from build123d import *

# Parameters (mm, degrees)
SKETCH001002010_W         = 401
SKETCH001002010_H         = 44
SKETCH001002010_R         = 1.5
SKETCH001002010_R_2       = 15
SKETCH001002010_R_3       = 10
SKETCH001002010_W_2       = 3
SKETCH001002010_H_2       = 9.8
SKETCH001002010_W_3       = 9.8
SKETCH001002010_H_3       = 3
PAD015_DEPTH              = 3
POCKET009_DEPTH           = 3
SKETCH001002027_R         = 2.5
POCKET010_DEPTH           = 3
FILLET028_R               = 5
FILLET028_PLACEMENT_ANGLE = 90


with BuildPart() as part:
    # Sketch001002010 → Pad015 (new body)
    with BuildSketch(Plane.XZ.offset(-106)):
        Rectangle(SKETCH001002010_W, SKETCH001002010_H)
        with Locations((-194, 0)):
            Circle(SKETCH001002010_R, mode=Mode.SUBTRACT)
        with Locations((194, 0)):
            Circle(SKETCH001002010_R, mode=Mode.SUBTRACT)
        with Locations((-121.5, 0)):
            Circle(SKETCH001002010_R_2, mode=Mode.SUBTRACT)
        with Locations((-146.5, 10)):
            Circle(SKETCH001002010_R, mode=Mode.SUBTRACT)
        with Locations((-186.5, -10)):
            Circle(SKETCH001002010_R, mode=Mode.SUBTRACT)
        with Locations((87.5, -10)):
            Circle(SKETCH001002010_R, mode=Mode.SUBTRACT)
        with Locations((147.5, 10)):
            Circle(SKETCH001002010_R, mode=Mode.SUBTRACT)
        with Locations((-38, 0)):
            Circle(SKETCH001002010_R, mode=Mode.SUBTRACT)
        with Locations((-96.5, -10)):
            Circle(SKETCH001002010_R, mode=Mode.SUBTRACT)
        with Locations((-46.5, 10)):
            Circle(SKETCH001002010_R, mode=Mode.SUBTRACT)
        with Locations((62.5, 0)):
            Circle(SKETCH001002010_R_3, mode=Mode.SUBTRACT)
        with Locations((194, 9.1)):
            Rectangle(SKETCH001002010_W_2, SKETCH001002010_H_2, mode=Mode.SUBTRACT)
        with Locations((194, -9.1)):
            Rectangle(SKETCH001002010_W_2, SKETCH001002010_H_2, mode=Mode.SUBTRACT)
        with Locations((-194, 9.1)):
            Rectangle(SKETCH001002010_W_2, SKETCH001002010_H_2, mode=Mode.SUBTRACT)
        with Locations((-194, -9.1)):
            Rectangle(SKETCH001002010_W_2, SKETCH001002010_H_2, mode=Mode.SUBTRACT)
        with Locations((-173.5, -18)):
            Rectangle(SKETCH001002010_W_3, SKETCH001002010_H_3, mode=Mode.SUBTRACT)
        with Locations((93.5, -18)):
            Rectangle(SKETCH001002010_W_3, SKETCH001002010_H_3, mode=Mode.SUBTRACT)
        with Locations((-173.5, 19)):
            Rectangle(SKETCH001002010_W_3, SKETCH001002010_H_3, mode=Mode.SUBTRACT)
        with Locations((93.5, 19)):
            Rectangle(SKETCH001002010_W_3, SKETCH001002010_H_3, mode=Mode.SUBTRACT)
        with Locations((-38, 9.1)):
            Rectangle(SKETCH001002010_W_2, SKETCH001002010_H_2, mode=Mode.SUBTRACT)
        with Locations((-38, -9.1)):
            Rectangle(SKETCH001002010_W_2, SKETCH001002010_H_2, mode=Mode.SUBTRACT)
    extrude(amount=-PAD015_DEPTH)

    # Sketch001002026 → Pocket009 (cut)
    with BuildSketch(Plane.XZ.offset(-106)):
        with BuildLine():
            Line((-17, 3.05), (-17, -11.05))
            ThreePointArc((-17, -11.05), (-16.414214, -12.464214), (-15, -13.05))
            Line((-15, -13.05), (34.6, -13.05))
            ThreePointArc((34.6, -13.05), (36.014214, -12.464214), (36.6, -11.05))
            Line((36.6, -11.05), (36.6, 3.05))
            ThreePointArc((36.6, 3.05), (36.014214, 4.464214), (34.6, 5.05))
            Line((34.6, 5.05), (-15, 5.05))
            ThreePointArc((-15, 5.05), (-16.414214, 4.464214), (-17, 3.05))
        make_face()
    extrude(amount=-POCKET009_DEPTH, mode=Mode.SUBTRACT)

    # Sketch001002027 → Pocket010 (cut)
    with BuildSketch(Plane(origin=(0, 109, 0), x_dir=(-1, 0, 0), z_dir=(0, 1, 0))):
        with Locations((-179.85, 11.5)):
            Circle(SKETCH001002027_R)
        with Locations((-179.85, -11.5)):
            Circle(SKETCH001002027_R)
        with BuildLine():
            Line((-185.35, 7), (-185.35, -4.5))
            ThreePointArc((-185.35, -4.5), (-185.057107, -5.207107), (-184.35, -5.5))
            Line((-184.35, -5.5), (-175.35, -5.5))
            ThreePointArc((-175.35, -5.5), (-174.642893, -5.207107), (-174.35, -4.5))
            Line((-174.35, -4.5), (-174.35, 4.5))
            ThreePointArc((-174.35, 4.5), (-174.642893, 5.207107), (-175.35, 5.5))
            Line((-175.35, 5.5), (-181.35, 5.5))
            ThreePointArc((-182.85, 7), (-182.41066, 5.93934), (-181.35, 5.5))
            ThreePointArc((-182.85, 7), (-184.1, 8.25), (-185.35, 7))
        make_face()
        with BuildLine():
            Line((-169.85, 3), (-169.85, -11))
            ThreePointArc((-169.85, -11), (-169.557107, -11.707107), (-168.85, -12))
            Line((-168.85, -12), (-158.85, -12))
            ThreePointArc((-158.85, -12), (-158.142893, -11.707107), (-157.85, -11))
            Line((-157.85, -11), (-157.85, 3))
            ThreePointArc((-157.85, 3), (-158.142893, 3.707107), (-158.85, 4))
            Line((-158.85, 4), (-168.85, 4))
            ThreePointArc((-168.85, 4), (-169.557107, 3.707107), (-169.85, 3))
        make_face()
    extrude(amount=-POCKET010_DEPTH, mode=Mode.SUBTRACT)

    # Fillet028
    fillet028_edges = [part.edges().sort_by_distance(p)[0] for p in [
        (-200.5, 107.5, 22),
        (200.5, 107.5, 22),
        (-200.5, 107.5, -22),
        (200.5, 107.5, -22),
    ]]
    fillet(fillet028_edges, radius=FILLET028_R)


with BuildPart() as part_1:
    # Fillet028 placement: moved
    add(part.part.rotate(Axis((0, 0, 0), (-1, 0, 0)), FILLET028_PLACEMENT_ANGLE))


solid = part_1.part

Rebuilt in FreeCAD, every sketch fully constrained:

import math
import FreeCAD as App
import Part
import Sketcher


def edges_at(feature, points):
    """Names of the edges that pass closest to the given points."""
    edges = feature.Shape.Edges
    near = lambda p: min(range(len(edges)), key=lambda i: edges[i].distToShape(Part.Vertex(*p))[0])
    return sorted({f"Edge{near(p) + 1}" for p in points})


def add_polygon(sketch, points):
    """Adds a closed chain of lines whose ends are joined by coincident constraints."""
    first, n = sketch.GeometryCount, len(points)
    for a, b in zip(points, points[1:] + points[:1]):
        sketch.addGeometry(Part.LineSegment(App.Vector(*a, 0), App.Vector(*b, 0)), False)
    for i in range(n):
        sketch.addConstraint(Sketcher.Constraint("Coincident", first + i, 2, first + (i + 1) % n, 1))

doc = App.newDocument("Part")
params = doc.addObject("Spreadsheet::Sheet", "Params")
for row, (alias, value) in enumerate([
    ("sketch1_diameter", "3 mm"),
    ("sketch1_diameter2", "30 mm"),
    ("sketch1_diameter3", "20 mm"),
    ("sketch1_width", "401 mm"),
    ("sketch1_width2", "3 mm"),
    ("pad1_length", "3 mm"),
    ("sketch2_radius", "1.999999 mm"),
    ("sketch2_width", "49.6 mm"),
    ("sketch2_height", "14.1 mm"),
    ("pocket1_length", "3 mm"),
    ("sketch3_diameter", "5 mm"),
    ("sketch3_radius", "0.999999 mm"),
    ("sketch3_radius2", "1.500001 mm"),
    ("sketch3_width", "9 mm"),
    ("sketch3_width2", "6 mm"),
    ("pocket2_length", "3 mm"),
    ("fillet_radius", "5 mm"),
], start=1):
    params.set(f"A{row}", alias)
    params.set(f"B{row}", "=" + value)
    params.setAlias(f"B{row}", alias)

body = doc.addObject("PartDesign::Body", "Body")

sketch1 = body.newObject("Sketcher::SketchObject", "Sketch")
sketch1.AttachmentSupport = (doc.getObject("XZ_Plane"), [""])
sketch1.MapMode = "FlatFace"
sketch1.AttachmentOffset = App.Placement(App.Vector(0, 0, -106), App.Rotation())
add_polygon(sketch1, [(-200.5, 22), (-200.5, -22), (200.5, -22), (200.5, 22)])
add_polygon(sketch1, [(-168.6, -19.5), (-178.4, -19.5), (-178.4, -16.5), (-168.6, -16.5)])
sketch1.addGeometry(Part.Circle(App.Vector(-186.5, -10, 0), App.Vector(0, 0, 1), 1.5), False)
sketch1.addGeometry(Part.Circle(App.Vector(-96.5, -10, 0), App.Vector(0, 0, 1), 1.5), False)
add_polygon(sketch1, [(-192.5, -14), (-195.5, -14), (-195.5, -4.2), (-192.5, -4.2)])
sketch1.addGeometry(Part.Circle(App.Vector(-194, 0, 0), App.Vector(0, 0, 1), 1.5), False)
sketch1.addGeometry(Part.Circle(App.Vector(-121.5, 0, 0), App.Vector(0, 0, 1), 15), False)
add_polygon(sketch1, [(-36.5, -14), (-39.5, -14), (-39.5, -4.2), (-36.5, -4.2)])
sketch1.addGeometry(Part.Circle(App.Vector(-38, 0, 0), App.Vector(0, 0, 1), 1.5), False)
add_polygon(sketch1, [(98.4, -19.5), (88.6, -19.5), (88.6, -16.5), (98.4, -16.5)])
sketch1.addGeometry(Part.Circle(App.Vector(87.5, -10, 0), App.Vector(0, 0, 1), 1.5), False)
sketch1.addGeometry(Part.Circle(App.Vector(62.5, 0, 0), App.Vector(0, 0, 1), 10), False)
add_polygon(sketch1, [(195.5, -14), (192.5, -14), (192.5, -4.2), (195.5, -4.2)])
sketch1.addGeometry(Part.Circle(App.Vector(194, 0, 0), App.Vector(0, 0, 1), 1.5), False)
add_polygon(sketch1, [(-192.5, 4.2), (-195.5, 4.2), (-195.5, 14), (-192.5, 14)])
sketch1.addGeometry(Part.Circle(App.Vector(-146.5, 10, 0), App.Vector(0, 0, 1), 1.5), False)
add_polygon(sketch1, [(-36.5, 4.2), (-39.5, 4.2), (-39.5, 14), (-36.5, 14)])
sketch1.addGeometry(Part.Circle(App.Vector(-46.5, 10, 0), App.Vector(0, 0, 1), 1.5), False)
add_polygon(sketch1, [(-168.6, 17.5), (-178.4, 17.5), (-178.4, 20.5), (-168.6, 20.5)])
sketch1.addGeometry(Part.Circle(App.Vector(147.5, 10, 0), App.Vector(0, 0, 1), 1.5), False)
add_polygon(sketch1, [(195.5, 4.2), (192.5, 4.2), (192.5, 14), (195.5, 14)])
add_polygon(sketch1, [(98.4, 17.5), (88.6, 17.5), (88.6, 20.5), (98.4, 20.5)])
sketch1.addConstraint([
    Sketcher.Constraint("Vertical", 0),
    Sketcher.Constraint("Horizontal", 1),
    Sketcher.Constraint("Vertical", 2),
    Sketcher.Constraint("Horizontal", 3),
    Sketcher.Constraint("Horizontal", 4),
    Sketcher.Constraint("Vertical", 5),
    Sketcher.Constraint("Horizontal", 6),
    Sketcher.Constraint("Vertical", 7),
    Sketcher.Constraint("Horizontal", 10),
    Sketcher.Constraint("Vertical", 11),
    Sketcher.Constraint("Horizontal", 12),
    Sketcher.Constraint("Vertical", 13),
    Sketcher.Constraint("Horizontal", 16),
    Sketcher.Constraint("Vertical", 17),
    Sketcher.Constraint("Horizontal", 18),
    Sketcher.Constraint("Vertical", 19),
    Sketcher.Constraint("Horizontal", 21),
    Sketcher.Constraint("Vertical", 22),
    Sketcher.Constraint("Horizontal", 23),
    Sketcher.Constraint("Vertical", 24),
    Sketcher.Constraint("Horizontal", 27),
    Sketcher.Constraint("Vertical", 28),
    Sketcher.Constraint("Horizontal", 29),
    Sketcher.Constraint("Vertical", 30),
    Sketcher.Constraint("Horizontal", 32),
    Sketcher.Constraint("Vertical", 33),
    Sketcher.Constraint("Horizontal", 34),
    Sketcher.Constraint("Vertical", 35),
    Sketcher.Constraint("Horizontal", 37),
    Sketcher.Constraint("Vertical", 38),
    Sketcher.Constraint("Horizontal", 39),
    Sketcher.Constraint("Vertical", 40),
    Sketcher.Constraint("Horizontal", 42),
    Sketcher.Constraint("Vertical", 43),
    Sketcher.Constraint("Horizontal", 44),
    Sketcher.Constraint("Vertical", 45),
    Sketcher.Constraint("Horizontal", 47),
    Sketcher.Constraint("Vertical", 48),
    Sketcher.Constraint("Horizontal", 49),
    Sketcher.Constraint("Vertical", 50),
    Sketcher.Constraint("Horizontal", 51),
    Sketcher.Constraint("Vertical", 52),
    Sketcher.Constraint("Horizontal", 53),
    Sketcher.Constraint("Vertical", 54),
    Sketcher.Constraint("Equal", 8, 9),
    Sketcher.Constraint("Equal", 9, 14),
    Sketcher.Constraint("Equal", 14, 20),
    Sketcher.Constraint("Equal", 20, 25),
    Sketcher.Constraint("Equal", 25, 31),
    Sketcher.Constraint("Equal", 31, 36),
    Sketcher.Constraint("Equal", 36, 41),
    Sketcher.Constraint("Equal", 41, 46),
    Sketcher.Constraint("Symmetric", 14, 3, 31, 3, -1, 1),
    Sketcher.Constraint("Symmetric", 0, 2, 2, 2, -1, 1),
    Sketcher.Constraint("Symmetric", 29, 2, 32, 2, -1, 1),
    Sketcher.Constraint("Symmetric", 27, 2, 34, 2, -1, 1),
    Sketcher.Constraint("Symmetric", 12, 2, 47, 2, -1, 1),
    Sketcher.Constraint("Symmetric", 10, 2, 49, 2, -1, 1),
    Sketcher.Constraint("Symmetric", 13, 2, 27, 2, -2),
    Sketcher.Constraint("Symmetric", 11, 2, 29, 2, -2),
    Sketcher.Constraint("Symmetric", 17, 2, 37, 2, -1),
    Sketcher.Constraint("Symmetric", 19, 2, 39, 2, -1),
    Sketcher.Constraint("PointOnObject", 14, 3, -1),
    Sketcher.Constraint("PointOnObject", 15, 3, -1),
    Sketcher.Constraint("PointOnObject", 20, 3, -1),
    Sketcher.Constraint("PointOnObject", 26, 3, -1),
    Sketcher.Constraint("Horizontal", 8, 3, 9, 3),
    Sketcher.Constraint("Horizontal", 9, 3, 25, 3),
    Sketcher.Constraint("Horizontal", 36, 3, 41, 3),
    Sketcher.Constraint("Horizontal", 41, 3, 46, 3),
    Sketcher.Constraint("Horizontal", 13, 2, 16, 2),
    Sketcher.Constraint("Horizontal", 12, 2, 17, 2),
    Sketcher.Constraint("Horizontal", 7, 2, 21, 2),
    Sketcher.Constraint("Horizontal", 6, 2, 22, 2),
    Sketcher.Constraint("Horizontal", 45, 2, 51, 2),
    Sketcher.Constraint("Horizontal", 44, 2, 52, 2),
    Sketcher.Constraint("Vertical", 5, 2, 42, 2),
    Sketcher.Constraint("Vertical", 7, 2, 44, 2),
    Sketcher.Constraint("Vertical", 22, 2, 51, 2),
    Sketcher.Constraint("Vertical", 24, 2, 53, 2),
    Sketcher.Constraint("Equal", 12, 16),
    Sketcher.Constraint("Equal", 6, 21),
    Sketcher.Constraint("Equal", 49, 5),
    Sketcher.Constraint("Equal", 53, 11),
    Sketcher.Constraint("Equal", 24, 43),
    Sketcher.Constraint("Diameter", 8, 3.0),
    Sketcher.Constraint("Diameter", 15, 30.0),
    Sketcher.Constraint("Diameter", 26, 20.0),
    Sketcher.Constraint("DistanceX", 1, 1, 1, 2, 401.0),
    Sketcher.Constraint("DistanceX", 10, 2, 10, 1, 3.0),
    Sketcher.Constraint("DistanceY", 0, 2, 0, 1, 44.0),
    Sketcher.Constraint("DistanceX", 4, 2, 4, 1, 9.8),
    Sketcher.Constraint("DistanceY", 8, 3, -1, 1, 10.0),
    Sketcher.Constraint("DistanceX", 14, 3, -1, 1, 194.0),
    Sketcher.Constraint("DistanceX", 20, 3, -1, 1, 38.0),
    Sketcher.Constraint("DistanceY", -1, 1, 36, 3, 10.0),
    Sketcher.Constraint("DistanceY", 10, 2, -1, 1, 14.0),
    Sketcher.Constraint("DistanceX", 8, 3, 9, 3, 90.0),
    Sketcher.Constraint("DistanceX", 15, 3, 9, 3, 25.0),
    Sketcher.Constraint("DistanceX", 9, 3, 25, 3, 184.0),
    Sketcher.Constraint("DistanceX", 26, 3, 25, 3, 25.0),
    Sketcher.Constraint("DistanceX", 36, 3, 15, 3, 25.0),
    Sketcher.Constraint("DistanceX", 9, 3, 41, 3, 50.0),
    Sketcher.Constraint("DistanceX", 25, 3, 46, 3, 60.0),
    Sketcher.Constraint("DistanceX", 0, 2, 8, 3, 14.0),
    Sketcher.Constraint("DistanceX", 0, 2, 10, 2, 5.0),
    Sketcher.Constraint("DistanceX", 41, 3, 16, 2, 7.0),
    Sketcher.Constraint("DistanceY", 22, 2, 51, 2, 34.0),
    Sketcher.Constraint("DistanceX", 4, 2, -1, 1, 178.4),
    Sketcher.Constraint("DistanceY", 4, 2, -1, 1, 19.5),
    Sketcher.Constraint("DistanceX", -1, 1, 21, 2, 88.6),
])
sketch1.setExpression("Constraints[129]", "Params.sketch1_diameter")
sketch1.setExpression("Constraints[130]", "Params.sketch1_diameter2")
sketch1.setExpression("Constraints[131]", "Params.sketch1_diameter3")
sketch1.setExpression("Constraints[132]", "Params.sketch1_width")
sketch1.setExpression("Constraints[133]", "Params.sketch1_width2")
pad1 = body.newObject("PartDesign::Pad", "Pad")
pad1.Profile = sketch1
pad1.setExpression("Length", "Params.pad1_length")
pad1.Reversed = True

sketch2 = body.newObject("Sketcher::SketchObject", "Sketch001")
sketch2.AttachmentSupport = (doc.getObject("XZ_Plane"), [""])
sketch2.MapMode = "FlatFace"
sketch2.AttachmentOffset = App.Placement(App.Vector(0, 0, -106), App.Rotation())
sketch2.addGeometry([
    Part.LineSegment(App.Vector(-17, 3.05, 0), App.Vector(-17, -11.05, 0)),
    Part.ArcOfCircle(Part.Circle(App.Vector(-15.000001, -11.050001, 0), App.Vector(0, 0, 1), 1.999999), math.radians(179.999957), math.radians(270.000043)),
    Part.LineSegment(App.Vector(-15, -13.05, 0), App.Vector(34.6, -13.05, 0)),
    Part.ArcOfCircle(Part.Circle(App.Vector(34.600001, -11.050001, 0), App.Vector(0, 0, 1), 1.999999), math.radians(-90.000043), math.radians(0.000043)),
    Part.LineSegment(App.Vector(36.6, -11.05, 0), App.Vector(36.6, 3.05, 0)),
    Part.ArcOfCircle(Part.Circle(App.Vector(34.600001, 3.050001, 0), App.Vector(0, 0, 1), 1.999999), math.radians(-0.000043), math.radians(90.000043)),
    Part.LineSegment(App.Vector(34.6, 5.05, 0), App.Vector(-15, 5.05, 0)),
    Part.ArcOfCircle(Part.Circle(App.Vector(-15.000001, 3.050001, 0), App.Vector(0, 0, 1), 1.999999), math.radians(89.999957), math.radians(180.000043)),
], False)
sketch2.addConstraint([
    Sketcher.Constraint("Tangent", 0, 2, 1, 1),
    Sketcher.Constraint("Tangent", 1, 2, 2, 1),
    Sketcher.Constraint("Tangent", 2, 2, 3, 1),
    Sketcher.Constraint("Tangent", 3, 2, 4, 1),
    Sketcher.Constraint("Tangent", 4, 2, 5, 1),
    Sketcher.Constraint("Tangent", 5, 2, 6, 1),
    Sketcher.Constraint("Tangent", 6, 2, 7, 1),
    Sketcher.Constraint("Tangent", 7, 2, 0, 1),
    Sketcher.Constraint("Vertical", 0),
    Sketcher.Constraint("Horizontal", 2),
    Sketcher.Constraint("Vertical", 4),
    Sketcher.Constraint("Horizontal", 6),
    Sketcher.Constraint("Equal", 1, 3),
    Sketcher.Constraint("Equal", 3, 5),
    Sketcher.Constraint("Equal", 5, 7),
    Sketcher.Constraint("Radius", 1, 1.999999),
    Sketcher.Constraint("DistanceX", 2, 1, 2, 2, 49.6),
    Sketcher.Constraint("DistanceY", 0, 2, 0, 1, 14.1),
    Sketcher.Constraint("DistanceX", 1, 3, -1, 1, 15.000001),
    Sketcher.Constraint("DistanceY", 1, 3, -1, 1, 11.050001),
])
sketch2.setExpression("Constraints[15]", "Params.sketch2_radius")
sketch2.setExpression("Constraints[16]", "Params.sketch2_width")
sketch2.setExpression("Constraints[17]", "Params.sketch2_height")
pocket1 = body.newObject("PartDesign::Pocket", "Pocket")
pocket1.Profile = sketch2
pocket1.setExpression("Length", "Params.pocket1_length")

sketch3 = body.newObject("Sketcher::SketchObject", "Sketch002")
sketch3.AttachmentSupport = (doc.getObject("XZ_Plane"), [""])
sketch3.MapMode = "FlatFace"
sketch3.AttachmentOffset = App.Placement(App.Vector(0, 0, -109), App.Rotation())
sketch3.addGeometry([
    Part.Circle(App.Vector(179.85, 11.5, 0), App.Vector(0, 0, 1), 2.5),
    Part.Circle(App.Vector(179.85, -11.5, 0), App.Vector(0, 0, 1), 2.5),
    Part.LineSegment(App.Vector(185.35, 7, 0), App.Vector(185.35, -4.5, 0)),
    Part.ArcOfCircle(Part.Circle(App.Vector(184.350001, -4.500001, 0), App.Vector(0, 0, 1), 0.999999), math.radians(-90.000043), math.radians(0.000043)),
    Part.LineSegment(App.Vector(184.35, -5.5, 0), App.Vector(175.35, -5.5, 0)),
    Part.ArcOfCircle(Part.Circle(App.Vector(175.349999, -4.500001, 0), App.Vector(0, 0, 1), 0.999999), math.radians(179.999957), math.radians(270.000043)),
    Part.LineSegment(App.Vector(174.35, -4.5, 0), App.Vector(174.35, 4.5, 0)),
    Part.ArcOfCircle(Part.Circle(App.Vector(175.349999, 4.500001, 0), App.Vector(0, 0, 1), 0.999999), math.radians(89.999957), math.radians(180.000043)),
    Part.LineSegment(App.Vector(175.35, 5.5, 0), App.Vector(181.35, 5.5, 0)),
    Part.ArcOfCircle(Part.Circle(App.Vector(181.349999, 7.000001, 0), App.Vector(0, 0, 1), 1.500001), math.radians(-89.999978), math.radians(-0.000022)),
    Part.ArcOfCircle(Part.Circle(App.Vector(184.1, 7, 0), App.Vector(0, 0, 1), 1.25), math.radians(0), math.radians(180)),
    Part.LineSegment(App.Vector(169.85, 3, 0), App.Vector(169.85, -11, 0)),
    Part.ArcOfCircle(Part.Circle(App.Vector(168.850001, -11.000001, 0), App.Vector(0, 0, 1), 0.999999), math.radians(-90.000043), math.radians(0.000043)),
    Part.LineSegment(App.Vector(168.85, -12, 0), App.Vector(158.85, -12, 0)),
    Part.ArcOfCircle(Part.Circle(App.Vector(158.849999, -11.000001, 0), App.Vector(0, 0, 1), 0.999999), math.radians(179.999957), math.radians(270.000043)),
    Part.LineSegment(App.Vector(157.85, -11, 0), App.Vector(157.85, 3, 0)),
    Part.ArcOfCircle(Part.Circle(App.Vector(158.849999, 3.000001, 0), App.Vector(0, 0, 1), 0.999999), math.radians(89.999957), math.radians(180.000043)),
    Part.LineSegment(App.Vector(158.85, 4, 0), App.Vector(168.85, 4, 0)),
    Part.ArcOfCircle(Part.Circle(App.Vector(168.850001, 3.000001, 0), App.Vector(0, 0, 1), 0.999999), math.radians(-0.000043), math.radians(90.000043)),
], False)
sketch3.addConstraint([
    Sketcher.Constraint("Tangent", 2, 2, 3, 2),
    Sketcher.Constraint("Tangent", 3, 1, 4, 1),
    Sketcher.Constraint("Tangent", 4, 2, 5, 2),
    Sketcher.Constraint("Tangent", 5, 1, 6, 1),
    Sketcher.Constraint("Tangent", 6, 2, 7, 2),
    Sketcher.Constraint("Tangent", 7, 1, 8, 1),
    Sketcher.Constraint("Tangent", 8, 2, 9, 1),
    Sketcher.Constraint("Tangent", 9, 2, 10, 2),
    Sketcher.Constraint("Tangent", 10, 1, 2, 1),
    Sketcher.Constraint("Tangent", 11, 2, 12, 2),
    Sketcher.Constraint("Tangent", 12, 1, 13, 1),
    Sketcher.Constraint("Tangent", 13, 2, 14, 2),
    Sketcher.Constraint("Tangent", 14, 1, 15, 1),
    Sketcher.Constraint("Tangent", 15, 2, 16, 2),
    Sketcher.Constraint("Tangent", 16, 1, 17, 1),
    Sketcher.Constraint("Tangent", 17, 2, 18, 2),
    Sketcher.Constraint("Tangent", 18, 1, 11, 1),
    Sketcher.Constraint("Vertical", 2),
    Sketcher.Constraint("Horizontal", 4),
    Sketcher.Constraint("Vertical", 6),
    Sketcher.Constraint("Horizontal", 8),
    Sketcher.Constraint("Vertical", 11),
    Sketcher.Constraint("Horizontal", 13),
    Sketcher.Constraint("Vertical", 15),
    Sketcher.Constraint("Horizontal", 17),
    Sketcher.Constraint("Equal", 0, 1),
    Sketcher.Constraint("Equal", 3, 5),
    Sketcher.Constraint("Equal", 5, 7),
    Sketcher.Constraint("Equal", 7, 12),
    Sketcher.Constraint("Equal", 12, 14),
    Sketcher.Constraint("Equal", 14, 16),
    Sketcher.Constraint("Equal", 16, 18),
    Sketcher.Constraint("Symmetric", 0, 3, 1, 3, -1),
    Sketcher.Constraint("Horizontal", 9, 3, 10, 3),
    Sketcher.Constraint("Equal", 4, 6),
    Sketcher.Constraint("Diameter", 0, 5.0),
    Sketcher.Constraint("Radius", 3, 0.999999),
    Sketcher.Constraint("Radius", 9, 1.500001),
    Sketcher.Constraint("DistanceX", 4, 2, 4, 1, 9.0),
    Sketcher.Constraint("DistanceX", 8, 1, 8, 2, 6.0),
    Sketcher.Constraint("DistanceX", 13, 2, 13, 1, 10.0),
    Sketcher.Constraint("DistanceY", 11, 2, 11, 1, 14.0),
    Sketcher.Constraint("DistanceY", -1, 1, 9, 3, 7.000001),
    Sketcher.Constraint("DistanceY", 12, 3, -1, 1, 11.000001),
    Sketcher.Constraint("DistanceY", 1, 3, 0, 3, 23.0),
    Sketcher.Constraint("DistanceX", 12, 3, 1, 3, 10.999999),
    Sketcher.Constraint("DistanceX", 0, 3, 9, 2, 3.0),
    Sketcher.Constraint("DistanceX", -1, 1, 10, 3, 184.1),
])
sketch3.setExpression("Constraints[35]", "Params.sketch3_diameter")
sketch3.setExpression("Constraints[36]", "Params.sketch3_radius")
sketch3.setExpression("Constraints[37]", "Params.sketch3_radius2")
sketch3.setExpression("Constraints[38]", "Params.sketch3_width")
sketch3.setExpression("Constraints[39]", "Params.sketch3_width2")
pocket2 = body.newObject("PartDesign::Pocket", "Pocket001")
pocket2.Profile = sketch3
pocket2.setExpression("Length", "Params.pocket2_length")
pocket2.Reversed = True
doc.recompute()

fillet = body.newObject("PartDesign::Fillet", "Fillet")
fillet.Base = (pocket2, edges_at(pocket2, [
    (-200.5, 107.5, 22),
    (200.5, 107.5, 22),
    (-200.5, 107.5, -22),
    (200.5, 107.5, -22),
]))
fillet.setExpression("Radius", "Params.fillet_radius")
body2 = doc.addObject("PartDesign::Body", "Body001")
doc.recompute()

body.Placement = App.Placement(App.Vector(0, 0, 0), App.Rotation(App.Vector(-1, 0, 0), 90))
boolean = body2.newObject("PartDesign::Boolean", "Boolean")
boolean.Type = "Fuse"
boolean.addObjects([body])

doc.recompute()
